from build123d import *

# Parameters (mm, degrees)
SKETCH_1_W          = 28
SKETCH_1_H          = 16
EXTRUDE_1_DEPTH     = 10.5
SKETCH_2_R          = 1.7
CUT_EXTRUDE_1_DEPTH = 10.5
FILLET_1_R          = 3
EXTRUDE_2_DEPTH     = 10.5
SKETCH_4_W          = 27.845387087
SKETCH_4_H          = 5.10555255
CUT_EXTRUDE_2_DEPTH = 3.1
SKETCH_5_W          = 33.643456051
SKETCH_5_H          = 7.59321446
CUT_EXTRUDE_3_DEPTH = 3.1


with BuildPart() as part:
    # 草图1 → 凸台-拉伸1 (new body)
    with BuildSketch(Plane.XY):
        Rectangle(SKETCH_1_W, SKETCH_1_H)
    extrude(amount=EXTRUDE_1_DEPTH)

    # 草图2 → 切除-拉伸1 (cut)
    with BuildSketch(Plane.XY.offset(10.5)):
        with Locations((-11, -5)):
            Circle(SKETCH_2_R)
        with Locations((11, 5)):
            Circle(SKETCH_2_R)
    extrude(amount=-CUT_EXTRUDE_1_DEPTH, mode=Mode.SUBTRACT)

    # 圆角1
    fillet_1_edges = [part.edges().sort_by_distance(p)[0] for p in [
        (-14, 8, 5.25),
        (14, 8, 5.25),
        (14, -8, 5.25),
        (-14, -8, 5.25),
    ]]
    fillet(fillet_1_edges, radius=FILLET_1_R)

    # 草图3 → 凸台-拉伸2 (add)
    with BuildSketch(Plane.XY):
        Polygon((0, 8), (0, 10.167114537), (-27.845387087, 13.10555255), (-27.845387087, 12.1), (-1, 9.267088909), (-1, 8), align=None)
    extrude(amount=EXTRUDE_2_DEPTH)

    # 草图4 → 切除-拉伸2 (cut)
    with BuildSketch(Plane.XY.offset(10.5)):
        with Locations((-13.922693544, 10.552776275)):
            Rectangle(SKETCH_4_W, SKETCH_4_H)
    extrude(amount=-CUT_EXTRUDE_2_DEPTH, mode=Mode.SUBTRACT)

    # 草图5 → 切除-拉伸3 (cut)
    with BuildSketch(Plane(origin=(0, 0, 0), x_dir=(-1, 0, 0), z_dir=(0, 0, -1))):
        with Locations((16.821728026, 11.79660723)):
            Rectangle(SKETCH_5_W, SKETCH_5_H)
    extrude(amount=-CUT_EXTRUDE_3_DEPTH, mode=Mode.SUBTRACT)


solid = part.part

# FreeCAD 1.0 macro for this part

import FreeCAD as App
import Part
import Sketcher
from FreeCAD import Vector


def edges_at(feature, points):
    """Names of the edges that pass closest to the given points."""
    edges = feature.Shape.Edges
    near = lambda p: min(range(len(edges)), key=lambda i: edges[i].distToShape(Part.Vertex(*p))[0])
    return sorted({f"Edge{near(p) + 1}" for p in points})


def add_polygon(sketch, points):
    """Adds a closed chain of lines whose ends are joined by coincident constraints."""
    first, n = sketch.GeometryCount, len(points)
    for a, b in zip(points, points[1:] + points[:1]):
        sketch.addGeometry(Part.LineSegment(App.Vector(*a, 0), App.Vector(*b, 0)), False)
    for i in range(n):
        sketch.addConstraint(Sketcher.Constraint("Coincident", first + i, 2, first + (i + 1) % n, 1))

doc = App.newDocument("Part")
body = doc.addObject("PartDesign::Body", "Body")

sketch1 = doc.addObject("Sketcher::SketchObject", "Sketch")
body.addObject(sketch1)
sketch1.AttachmentSupport = (doc.XY_Plane, [""])
sketch1.MapMode = "FlatFace"
add_polygon(sketch1, [(-14, 8), (-14, -8), (14, -8), (14, 8)])
sketch1.addConstraint([
    Sketcher.Constraint("Vertical", 0),
    Sketcher.Constraint("Horizontal", 1),
    Sketcher.Constraint("Vertical", 2),
    Sketcher.Constraint("Horizontal", 3),
    Sketcher.Constraint("Symmetric", 0, 2, 2, 2, -1, 1),
    Sketcher.Constraint("DistanceX", 1, 1, 1, 2, 28.0),
    Sketcher.Constraint("DistanceY", 0, 2, 0, 1, 16.0),
])
pad1 = doc.addObject("PartDesign::Pad", "Pad")
body.addObject(pad1)
pad1.Profile = sketch1
pad1.Length = 10.5

sketch2 = doc.addObject("Sketcher::SketchObject", "Sketch001")
body.addObject(sketch2)
sketch2.AttachmentSupport = (doc.XY_Plane, [""])
sketch2.MapMode = "FlatFace"
sketch2.AttachmentOffset = App.Placement(Vector(0, 0, 10.5), App.Rotation())
sketch2.addGeometry([
    Part.Circle(Vector(-11, -5, 0), Vector(0, 0, 1), 1.7),
    Part.Circle(Vector(11, 5, 0), Vector(0, 0, 1), 1.7),
], False)
sketch2.addConstraint([
    Sketcher.Constraint("Equal", 0, 1),
    Sketcher.Constraint("Symmetric", 0, 3, 1, 3, -1, 1),
    Sketcher.Constraint("Diameter", 0, 3.4),
    Sketcher.Constraint("DistanceX", 0, 3, -1, 1, 11.0),
    Sketcher.Constraint("DistanceY", 0, 3, -1, 1, 5.0),
])
pocket1 = doc.addObject("PartDesign::Pocket", "Pocket")
body.addObject(pocket1)
pocket1.Profile = sketch2
pocket1.Length = 10.5
doc.recompute()

fillet = doc.addObject("PartDesign::Fillet", "Fillet")
body.addObject(fillet)
fillet.Base = (pocket1, edges_at(pocket1, [
    (-14, 8, 5.25),
    (14, 8, 5.25),
    (14, -8, 5.25),
    (-14, -8, 5.25),
]))
fillet.Radius = 3

sketch3 = doc.addObject("Sketcher::SketchObject", "Sketch002")
body.addObject(sketch3)
sketch3.AttachmentSupport = (doc.XY_Plane, [""])
sketch3.MapMode = "FlatFace"
add_polygon(sketch3, [(0, 8), (0, 10.167115), (-27.845387, 13.105553), (-27.845387, 12.1), (-1, 9.267089), (-1, 8)])
sketch3.addConstraint([
    Sketcher.Constraint("Vertical", 0),
    Sketcher.Constraint("Vertical", 2),
    Sketcher.Constraint("Vertical", 4),
    Sketcher.Constraint("Horizontal", 5),
    Sketcher.Constraint("PointOnObject", 0, 2, -2),
    Sketcher.Constraint("Parallel", 1, 3),
    Sketcher.Constraint("DistanceX", 5, 1, 5, 2, 1.0),
    Sketcher.Constraint("Distance", 1, 28.0),
    Sketcher.Constraint("DistanceY", -1, 1, 4, 2, 8.0),
    Sketcher.Constraint("DistanceY", -1, 1, 2, 2, 12.1),
    Sketcher.Constraint("DistanceY", 4, 2, 4, 1, 1.267089),
    Sketcher.Constraint("DistanceY", 0, 1, 0, 2, 2.167115),
])
pad2 = doc.addObject("PartDesign::Pad", "Pad001")
body.addObject(pad2)
pad2.Profile = sketch3
pad2.Length = 10.5

sketch4 = doc.addObject("Sketcher::SketchObject", "Sketch003")
body.addObject(sketch4)
sketch4.AttachmentSupport = (doc.XY_Plane, [""])
sketch4.MapMode = "FlatFace"
sketch4.AttachmentOffset = App.Placement(Vector(0, 0, 10.5), App.Rotation())
add_polygon(sketch4, [(-27.845387, 13.105553), (-27.845387, 8), (0, 8), (0, 13.105553)])
sketch4.addConstraint([
    Sketcher.Constraint("Vertical", 0),
    Sketcher.Constraint("Horizontal", 1),
    Sketcher.Constraint("Vertical", 2),
    Sketcher.Constraint("Horizontal", 3),
    Sketcher.Constraint("PointOnObject", 1, 2, -2),
    Sketcher.Constraint("DistanceY", -1, 1, 0, 2, 8.0),
    Sketcher.Constraint("DistanceX", 1, 1, 1, 2, 27.845387),
    Sketcher.Constraint("DistanceY", 0, 2, 0, 1, 5.105553),
])
pocket2 = doc.addObject("PartDesign::Pocket", "Pocket001")
body.addObject(pocket2)
pocket2.Profile = sketch4
pocket2.Length = 3.1

sketch5 = doc.addObject("Sketcher::SketchObject", "Sketch004")
body.addObject(sketch5)
sketch5.AttachmentSupport = (doc.XY_Plane, [""])
sketch5.MapMode = "FlatFace"
add_polygon(sketch5, [(0, 15.593214), (0, 8), (-33.643456, 8), (-33.643456, 15.593214)])
sketch5.addConstraint([
    Sketcher.Constraint("Vertical", 0),
    Sketcher.Constraint("Horizontal", 1),
    Sketcher.Constraint("Vertical", 2),
    Sketcher.Constraint("Horizontal", 3),
    Sketcher.Constraint("PointOnObject", 0, 2, -2),
    Sketcher.Constraint("DistanceY", -1, 1, 0, 2, 8.0),
    Sketcher.Constraint("DistanceX", 1, 2, 1, 1, 33.643456),
    Sketcher.Constraint("DistanceY", 0, 2, 0, 1, 7.593214),
])
pocket3 = doc.addObject("PartDesign::Pocket", "Pocket002")
body.addObject(pocket3)
pocket3.Profile = sketch5
pocket3.Length = 3.1
pocket3.Reversed = True

doc.recompute()
